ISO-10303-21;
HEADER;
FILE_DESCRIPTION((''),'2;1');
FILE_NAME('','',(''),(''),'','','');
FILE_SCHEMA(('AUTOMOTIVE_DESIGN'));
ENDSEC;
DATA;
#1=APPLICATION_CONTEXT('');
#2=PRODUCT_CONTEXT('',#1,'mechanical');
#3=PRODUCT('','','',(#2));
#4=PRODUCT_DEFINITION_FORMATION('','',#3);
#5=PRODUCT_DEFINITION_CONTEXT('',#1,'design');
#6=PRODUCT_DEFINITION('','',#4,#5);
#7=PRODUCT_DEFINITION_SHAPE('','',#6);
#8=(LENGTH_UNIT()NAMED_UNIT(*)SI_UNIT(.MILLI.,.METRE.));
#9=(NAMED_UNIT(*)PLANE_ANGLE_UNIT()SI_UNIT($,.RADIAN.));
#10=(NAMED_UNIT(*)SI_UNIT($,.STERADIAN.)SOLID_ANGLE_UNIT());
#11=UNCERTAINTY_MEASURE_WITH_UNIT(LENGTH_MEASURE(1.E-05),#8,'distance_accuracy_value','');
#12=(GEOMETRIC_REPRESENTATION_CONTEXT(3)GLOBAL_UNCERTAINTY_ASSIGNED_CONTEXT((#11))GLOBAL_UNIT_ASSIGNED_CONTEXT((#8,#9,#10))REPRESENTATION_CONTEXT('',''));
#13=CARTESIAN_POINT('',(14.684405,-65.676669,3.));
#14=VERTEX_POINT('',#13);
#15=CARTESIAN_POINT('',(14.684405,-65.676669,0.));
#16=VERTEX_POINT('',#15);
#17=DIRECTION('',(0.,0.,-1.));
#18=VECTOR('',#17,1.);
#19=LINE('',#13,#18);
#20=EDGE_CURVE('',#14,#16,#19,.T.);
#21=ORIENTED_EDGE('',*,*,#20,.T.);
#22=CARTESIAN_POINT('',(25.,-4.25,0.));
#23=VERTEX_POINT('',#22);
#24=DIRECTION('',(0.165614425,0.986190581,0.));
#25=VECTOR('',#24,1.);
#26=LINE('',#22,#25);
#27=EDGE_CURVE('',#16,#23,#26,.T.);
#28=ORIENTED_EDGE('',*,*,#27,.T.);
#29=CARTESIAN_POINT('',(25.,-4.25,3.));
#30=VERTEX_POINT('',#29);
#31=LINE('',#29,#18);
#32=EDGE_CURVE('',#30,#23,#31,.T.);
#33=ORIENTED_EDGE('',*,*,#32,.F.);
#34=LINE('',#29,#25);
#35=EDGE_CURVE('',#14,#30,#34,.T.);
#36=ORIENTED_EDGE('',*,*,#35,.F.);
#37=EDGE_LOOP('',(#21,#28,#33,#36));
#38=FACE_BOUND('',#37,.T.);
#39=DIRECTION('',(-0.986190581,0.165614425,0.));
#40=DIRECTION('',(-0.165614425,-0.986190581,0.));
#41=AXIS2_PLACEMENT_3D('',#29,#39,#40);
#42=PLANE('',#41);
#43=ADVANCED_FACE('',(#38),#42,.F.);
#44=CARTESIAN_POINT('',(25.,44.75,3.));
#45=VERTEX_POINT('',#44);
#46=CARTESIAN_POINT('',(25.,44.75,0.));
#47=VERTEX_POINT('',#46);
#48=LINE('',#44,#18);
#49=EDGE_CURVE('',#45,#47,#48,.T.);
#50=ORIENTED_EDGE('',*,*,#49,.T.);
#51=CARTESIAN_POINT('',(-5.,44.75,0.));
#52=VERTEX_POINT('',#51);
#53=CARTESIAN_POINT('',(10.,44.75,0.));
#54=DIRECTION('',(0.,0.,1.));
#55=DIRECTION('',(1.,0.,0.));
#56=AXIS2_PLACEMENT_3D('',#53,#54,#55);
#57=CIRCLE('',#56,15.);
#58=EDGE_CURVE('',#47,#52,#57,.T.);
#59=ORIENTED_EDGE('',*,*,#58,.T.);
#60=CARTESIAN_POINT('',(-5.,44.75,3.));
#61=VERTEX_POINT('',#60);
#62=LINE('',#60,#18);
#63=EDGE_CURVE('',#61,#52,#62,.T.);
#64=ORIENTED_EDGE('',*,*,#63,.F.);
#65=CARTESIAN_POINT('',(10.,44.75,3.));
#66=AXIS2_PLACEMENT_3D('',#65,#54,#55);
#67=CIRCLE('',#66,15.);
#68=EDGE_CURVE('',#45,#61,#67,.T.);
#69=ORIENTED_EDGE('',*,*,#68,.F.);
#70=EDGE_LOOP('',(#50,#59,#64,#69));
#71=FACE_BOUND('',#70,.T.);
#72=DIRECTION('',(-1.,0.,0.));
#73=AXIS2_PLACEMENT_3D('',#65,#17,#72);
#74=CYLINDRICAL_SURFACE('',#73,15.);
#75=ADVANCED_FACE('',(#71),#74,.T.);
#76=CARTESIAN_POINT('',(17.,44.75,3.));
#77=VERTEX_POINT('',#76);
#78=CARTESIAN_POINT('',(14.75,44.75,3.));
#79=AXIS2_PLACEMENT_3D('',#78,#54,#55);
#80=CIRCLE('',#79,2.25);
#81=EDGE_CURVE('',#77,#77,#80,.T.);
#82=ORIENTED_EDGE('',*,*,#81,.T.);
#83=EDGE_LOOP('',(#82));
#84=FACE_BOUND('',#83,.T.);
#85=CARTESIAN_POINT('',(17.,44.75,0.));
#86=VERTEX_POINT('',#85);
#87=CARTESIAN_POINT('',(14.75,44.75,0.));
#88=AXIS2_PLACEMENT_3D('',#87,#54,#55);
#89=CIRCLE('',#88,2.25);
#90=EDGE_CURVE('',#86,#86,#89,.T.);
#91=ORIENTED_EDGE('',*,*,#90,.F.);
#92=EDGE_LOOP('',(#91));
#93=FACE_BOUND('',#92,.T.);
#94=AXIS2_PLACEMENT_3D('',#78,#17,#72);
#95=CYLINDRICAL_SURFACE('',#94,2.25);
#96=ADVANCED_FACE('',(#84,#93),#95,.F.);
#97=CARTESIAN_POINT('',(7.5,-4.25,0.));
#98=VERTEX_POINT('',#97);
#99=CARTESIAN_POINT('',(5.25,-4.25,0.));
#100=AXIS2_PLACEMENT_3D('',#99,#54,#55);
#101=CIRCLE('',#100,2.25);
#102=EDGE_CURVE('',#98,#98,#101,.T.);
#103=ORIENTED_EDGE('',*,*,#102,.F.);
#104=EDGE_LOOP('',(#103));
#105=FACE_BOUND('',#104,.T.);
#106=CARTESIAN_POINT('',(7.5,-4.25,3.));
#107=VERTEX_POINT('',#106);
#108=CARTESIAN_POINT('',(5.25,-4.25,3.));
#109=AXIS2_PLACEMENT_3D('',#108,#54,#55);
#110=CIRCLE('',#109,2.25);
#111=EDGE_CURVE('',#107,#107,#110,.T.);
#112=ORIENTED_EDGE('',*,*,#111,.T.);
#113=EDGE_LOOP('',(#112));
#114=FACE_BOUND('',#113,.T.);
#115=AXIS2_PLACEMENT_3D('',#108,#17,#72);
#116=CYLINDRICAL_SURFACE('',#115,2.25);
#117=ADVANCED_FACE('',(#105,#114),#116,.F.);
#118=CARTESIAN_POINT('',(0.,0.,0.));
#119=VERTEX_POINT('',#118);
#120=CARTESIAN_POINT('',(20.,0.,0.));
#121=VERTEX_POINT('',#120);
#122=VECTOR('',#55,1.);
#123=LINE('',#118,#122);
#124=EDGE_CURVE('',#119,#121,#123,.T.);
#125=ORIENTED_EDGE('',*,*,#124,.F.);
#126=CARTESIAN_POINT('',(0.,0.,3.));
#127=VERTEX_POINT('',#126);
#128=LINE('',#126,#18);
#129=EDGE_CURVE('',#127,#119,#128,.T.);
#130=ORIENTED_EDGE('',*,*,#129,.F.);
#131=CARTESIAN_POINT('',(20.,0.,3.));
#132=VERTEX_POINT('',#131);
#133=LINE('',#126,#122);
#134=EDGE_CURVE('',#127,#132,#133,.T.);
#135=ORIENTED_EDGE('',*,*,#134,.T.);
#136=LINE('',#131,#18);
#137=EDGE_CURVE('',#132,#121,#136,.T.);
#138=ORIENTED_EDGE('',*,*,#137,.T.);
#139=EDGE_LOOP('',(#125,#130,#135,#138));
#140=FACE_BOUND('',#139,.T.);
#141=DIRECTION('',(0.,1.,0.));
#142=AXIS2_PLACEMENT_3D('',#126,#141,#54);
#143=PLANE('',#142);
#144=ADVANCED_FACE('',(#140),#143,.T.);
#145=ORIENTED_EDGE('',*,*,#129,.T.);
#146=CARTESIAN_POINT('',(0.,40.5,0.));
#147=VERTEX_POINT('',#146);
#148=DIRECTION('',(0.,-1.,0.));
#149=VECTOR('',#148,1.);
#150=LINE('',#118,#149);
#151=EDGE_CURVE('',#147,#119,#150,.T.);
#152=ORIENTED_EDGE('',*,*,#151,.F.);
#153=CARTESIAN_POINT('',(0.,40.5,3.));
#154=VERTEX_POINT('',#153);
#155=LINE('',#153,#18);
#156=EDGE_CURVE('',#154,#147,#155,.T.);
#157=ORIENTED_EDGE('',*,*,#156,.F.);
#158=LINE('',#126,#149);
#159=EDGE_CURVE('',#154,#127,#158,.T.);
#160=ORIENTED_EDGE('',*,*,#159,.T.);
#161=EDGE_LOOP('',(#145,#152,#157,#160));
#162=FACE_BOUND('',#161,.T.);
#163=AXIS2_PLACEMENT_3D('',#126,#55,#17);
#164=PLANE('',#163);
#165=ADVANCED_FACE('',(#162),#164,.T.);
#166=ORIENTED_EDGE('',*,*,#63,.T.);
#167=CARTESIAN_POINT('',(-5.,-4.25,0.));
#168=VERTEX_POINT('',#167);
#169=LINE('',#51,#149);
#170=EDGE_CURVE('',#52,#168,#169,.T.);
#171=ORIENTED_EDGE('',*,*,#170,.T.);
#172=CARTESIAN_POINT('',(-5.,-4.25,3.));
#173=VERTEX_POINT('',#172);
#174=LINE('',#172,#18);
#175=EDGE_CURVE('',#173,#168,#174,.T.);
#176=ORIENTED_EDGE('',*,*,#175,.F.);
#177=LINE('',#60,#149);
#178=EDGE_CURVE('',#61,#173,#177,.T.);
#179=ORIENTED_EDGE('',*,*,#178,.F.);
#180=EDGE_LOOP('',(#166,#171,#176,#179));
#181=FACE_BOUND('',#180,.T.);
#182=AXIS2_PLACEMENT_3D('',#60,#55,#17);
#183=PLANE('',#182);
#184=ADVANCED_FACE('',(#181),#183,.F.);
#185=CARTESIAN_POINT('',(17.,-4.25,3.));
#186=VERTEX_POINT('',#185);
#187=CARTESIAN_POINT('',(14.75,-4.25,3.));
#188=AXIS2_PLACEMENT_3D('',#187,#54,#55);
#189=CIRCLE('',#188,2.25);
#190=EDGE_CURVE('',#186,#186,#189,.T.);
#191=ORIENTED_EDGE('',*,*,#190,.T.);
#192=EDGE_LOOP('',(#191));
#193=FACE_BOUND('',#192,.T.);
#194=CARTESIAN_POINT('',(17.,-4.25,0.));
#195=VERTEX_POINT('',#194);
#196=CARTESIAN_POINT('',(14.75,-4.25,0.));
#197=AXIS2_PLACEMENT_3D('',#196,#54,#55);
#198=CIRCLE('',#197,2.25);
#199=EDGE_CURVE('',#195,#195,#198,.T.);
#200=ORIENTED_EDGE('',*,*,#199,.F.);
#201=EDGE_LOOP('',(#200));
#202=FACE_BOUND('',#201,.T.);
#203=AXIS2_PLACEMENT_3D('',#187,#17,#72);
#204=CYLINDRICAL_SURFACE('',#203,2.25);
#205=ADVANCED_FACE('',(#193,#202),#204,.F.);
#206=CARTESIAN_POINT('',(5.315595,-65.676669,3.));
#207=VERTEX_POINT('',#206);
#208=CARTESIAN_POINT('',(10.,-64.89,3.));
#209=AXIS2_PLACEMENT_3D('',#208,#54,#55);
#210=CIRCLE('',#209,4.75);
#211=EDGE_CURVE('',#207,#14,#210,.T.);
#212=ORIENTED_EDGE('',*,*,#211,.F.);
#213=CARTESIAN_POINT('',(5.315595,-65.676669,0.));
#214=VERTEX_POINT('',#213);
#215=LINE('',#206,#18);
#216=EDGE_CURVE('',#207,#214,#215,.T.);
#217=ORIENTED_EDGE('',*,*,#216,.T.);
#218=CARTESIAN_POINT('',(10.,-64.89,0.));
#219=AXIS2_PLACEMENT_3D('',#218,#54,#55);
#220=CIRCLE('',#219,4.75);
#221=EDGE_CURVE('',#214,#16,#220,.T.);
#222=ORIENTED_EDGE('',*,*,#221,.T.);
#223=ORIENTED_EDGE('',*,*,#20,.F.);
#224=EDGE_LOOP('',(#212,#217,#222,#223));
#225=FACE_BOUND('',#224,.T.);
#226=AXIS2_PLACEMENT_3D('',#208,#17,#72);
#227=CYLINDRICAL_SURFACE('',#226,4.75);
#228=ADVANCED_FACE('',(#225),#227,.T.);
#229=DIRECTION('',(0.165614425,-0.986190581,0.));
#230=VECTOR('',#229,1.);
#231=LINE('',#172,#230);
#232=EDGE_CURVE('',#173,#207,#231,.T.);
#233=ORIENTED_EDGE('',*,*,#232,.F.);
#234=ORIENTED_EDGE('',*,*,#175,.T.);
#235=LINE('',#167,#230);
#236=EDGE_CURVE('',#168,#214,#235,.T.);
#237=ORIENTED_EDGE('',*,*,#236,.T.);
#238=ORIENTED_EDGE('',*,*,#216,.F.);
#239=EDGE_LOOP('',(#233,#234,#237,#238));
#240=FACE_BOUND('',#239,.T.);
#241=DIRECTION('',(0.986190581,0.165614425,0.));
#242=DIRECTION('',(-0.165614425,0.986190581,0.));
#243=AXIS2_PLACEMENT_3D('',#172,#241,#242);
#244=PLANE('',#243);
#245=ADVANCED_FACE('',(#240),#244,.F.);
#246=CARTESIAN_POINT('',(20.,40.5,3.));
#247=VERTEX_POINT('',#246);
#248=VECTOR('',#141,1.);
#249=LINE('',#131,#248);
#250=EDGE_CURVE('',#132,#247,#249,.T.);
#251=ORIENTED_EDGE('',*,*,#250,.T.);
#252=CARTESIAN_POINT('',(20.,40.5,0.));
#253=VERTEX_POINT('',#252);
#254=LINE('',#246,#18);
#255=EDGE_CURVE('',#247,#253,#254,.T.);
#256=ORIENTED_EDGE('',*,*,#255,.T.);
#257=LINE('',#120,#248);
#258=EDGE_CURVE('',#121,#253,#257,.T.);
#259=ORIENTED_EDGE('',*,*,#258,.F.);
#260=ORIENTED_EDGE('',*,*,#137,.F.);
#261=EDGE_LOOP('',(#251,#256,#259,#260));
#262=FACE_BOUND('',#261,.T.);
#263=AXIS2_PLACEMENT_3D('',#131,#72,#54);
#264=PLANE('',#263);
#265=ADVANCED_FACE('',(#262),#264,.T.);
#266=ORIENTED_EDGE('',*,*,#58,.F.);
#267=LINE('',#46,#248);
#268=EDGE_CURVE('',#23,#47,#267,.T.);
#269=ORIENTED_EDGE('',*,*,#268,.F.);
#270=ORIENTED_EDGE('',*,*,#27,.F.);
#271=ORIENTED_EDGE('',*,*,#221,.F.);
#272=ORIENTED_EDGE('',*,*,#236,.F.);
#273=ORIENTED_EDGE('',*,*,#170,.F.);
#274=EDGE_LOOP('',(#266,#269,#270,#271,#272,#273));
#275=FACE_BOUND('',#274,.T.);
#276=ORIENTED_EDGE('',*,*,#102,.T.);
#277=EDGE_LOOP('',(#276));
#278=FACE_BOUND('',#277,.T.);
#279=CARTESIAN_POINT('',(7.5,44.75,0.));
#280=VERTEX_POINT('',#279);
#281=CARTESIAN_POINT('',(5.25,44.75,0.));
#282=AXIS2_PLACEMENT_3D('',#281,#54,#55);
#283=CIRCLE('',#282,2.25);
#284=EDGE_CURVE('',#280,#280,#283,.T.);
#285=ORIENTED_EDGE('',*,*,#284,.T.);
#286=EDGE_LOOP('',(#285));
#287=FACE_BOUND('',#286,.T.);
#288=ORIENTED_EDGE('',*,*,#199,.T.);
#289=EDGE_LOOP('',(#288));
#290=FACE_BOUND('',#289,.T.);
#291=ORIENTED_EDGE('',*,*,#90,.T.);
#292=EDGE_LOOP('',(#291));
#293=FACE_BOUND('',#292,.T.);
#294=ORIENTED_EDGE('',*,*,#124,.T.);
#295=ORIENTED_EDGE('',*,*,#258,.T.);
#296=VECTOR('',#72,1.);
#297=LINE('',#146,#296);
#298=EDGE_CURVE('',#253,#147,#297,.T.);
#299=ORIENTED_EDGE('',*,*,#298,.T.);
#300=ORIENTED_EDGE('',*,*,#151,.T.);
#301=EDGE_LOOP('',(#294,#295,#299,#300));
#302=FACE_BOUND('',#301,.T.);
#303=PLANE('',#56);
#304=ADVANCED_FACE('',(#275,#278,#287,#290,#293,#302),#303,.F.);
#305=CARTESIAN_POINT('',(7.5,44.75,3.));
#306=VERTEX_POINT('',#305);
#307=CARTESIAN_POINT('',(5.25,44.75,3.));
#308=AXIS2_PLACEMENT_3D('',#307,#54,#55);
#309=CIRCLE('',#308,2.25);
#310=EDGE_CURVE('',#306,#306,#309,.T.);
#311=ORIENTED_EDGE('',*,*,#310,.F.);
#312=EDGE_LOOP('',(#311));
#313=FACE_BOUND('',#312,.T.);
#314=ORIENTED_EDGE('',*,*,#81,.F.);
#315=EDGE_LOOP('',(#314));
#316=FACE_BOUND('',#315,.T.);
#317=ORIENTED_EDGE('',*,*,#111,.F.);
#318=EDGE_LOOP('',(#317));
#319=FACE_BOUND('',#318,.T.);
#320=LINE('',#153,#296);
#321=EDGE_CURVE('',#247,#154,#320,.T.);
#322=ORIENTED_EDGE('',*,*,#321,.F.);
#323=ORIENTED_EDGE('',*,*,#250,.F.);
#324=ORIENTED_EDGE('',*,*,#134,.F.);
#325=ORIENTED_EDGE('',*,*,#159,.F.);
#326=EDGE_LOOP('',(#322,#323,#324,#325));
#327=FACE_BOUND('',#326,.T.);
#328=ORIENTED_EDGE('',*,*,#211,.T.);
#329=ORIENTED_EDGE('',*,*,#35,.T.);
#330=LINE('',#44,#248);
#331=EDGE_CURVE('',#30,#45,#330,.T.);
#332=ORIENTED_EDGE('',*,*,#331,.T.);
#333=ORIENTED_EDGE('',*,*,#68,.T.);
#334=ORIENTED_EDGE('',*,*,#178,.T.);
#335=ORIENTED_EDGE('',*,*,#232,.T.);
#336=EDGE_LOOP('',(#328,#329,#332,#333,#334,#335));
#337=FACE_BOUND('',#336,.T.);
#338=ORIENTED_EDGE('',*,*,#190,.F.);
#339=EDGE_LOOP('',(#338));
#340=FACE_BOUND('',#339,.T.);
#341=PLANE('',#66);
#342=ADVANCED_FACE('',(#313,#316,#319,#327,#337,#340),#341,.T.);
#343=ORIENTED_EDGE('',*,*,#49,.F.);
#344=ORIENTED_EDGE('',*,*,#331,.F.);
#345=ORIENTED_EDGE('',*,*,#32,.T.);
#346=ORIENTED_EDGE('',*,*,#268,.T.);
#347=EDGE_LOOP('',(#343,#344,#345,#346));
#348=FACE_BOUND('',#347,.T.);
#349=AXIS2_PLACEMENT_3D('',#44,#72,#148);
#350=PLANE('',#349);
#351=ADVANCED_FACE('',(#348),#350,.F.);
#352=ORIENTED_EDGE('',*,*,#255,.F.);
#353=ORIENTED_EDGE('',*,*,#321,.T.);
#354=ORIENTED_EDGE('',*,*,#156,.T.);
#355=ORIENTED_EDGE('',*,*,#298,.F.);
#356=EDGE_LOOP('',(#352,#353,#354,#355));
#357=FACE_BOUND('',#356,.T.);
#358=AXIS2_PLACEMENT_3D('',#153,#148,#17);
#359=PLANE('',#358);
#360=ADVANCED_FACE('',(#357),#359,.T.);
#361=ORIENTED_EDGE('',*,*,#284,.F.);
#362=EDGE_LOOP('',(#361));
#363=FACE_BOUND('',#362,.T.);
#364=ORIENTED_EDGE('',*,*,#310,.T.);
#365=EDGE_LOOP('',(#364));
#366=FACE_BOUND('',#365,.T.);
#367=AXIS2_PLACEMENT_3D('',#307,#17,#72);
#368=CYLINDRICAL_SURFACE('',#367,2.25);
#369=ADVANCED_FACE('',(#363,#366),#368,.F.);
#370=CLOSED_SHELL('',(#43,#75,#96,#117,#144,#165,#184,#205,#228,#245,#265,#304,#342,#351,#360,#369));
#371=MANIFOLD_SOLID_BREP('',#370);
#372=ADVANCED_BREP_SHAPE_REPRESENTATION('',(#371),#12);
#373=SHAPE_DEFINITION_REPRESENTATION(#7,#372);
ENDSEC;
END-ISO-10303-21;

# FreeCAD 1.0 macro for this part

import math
import FreeCAD as App
import Part
import Sketcher
from FreeCAD import Vector

doc = App.newDocument("Part")
body = doc.addObject("PartDesign::Body", "Body")

sketch1 = body.newObject("Sketcher::SketchObject", "Sketch")
sketch1.AttachmentSupport = (doc.getObject("XY_Plane"), [""])
sketch1.MapMode = "FlatFace"
sketch1.addGeometry([
    Part.LineSegment(Vector(-5, 44.75, 0), Vector(-5, -4.25, 0)),
    Part.LineSegment(Vector(-5, -4.25, 0), Vector(5.315595, -65.676669, 0)),
    Part.ArcOfCircle(Part.Circle(Vector(10, -64.89, 0), Vector(0, 0, 1), 4.75), math.radians(-170.46707), math.radians(-9.53293)),
    Part.LineSegment(Vector(14.684405, -65.676669, 0), Vector(25, -4.25, 0)),
    Part.LineSegment(Vector(25, -4.25, 0), Vector(25, 44.75, 0)),
    Part.ArcOfCircle(Part.Circle(Vector(10, 44.75, 0), Vector(0, 0, 1), 15), math.radians(0), math.radians(180)),
    Part.Circle(Vector(5.25, -4.25, 0), Vector(0, 0, 1), 2.25),
    Part.Circle(Vector(14.75, -4.25, 0), Vector(0, 0, 1), 2.25),
    Part.LineSegment(Vector(20, 0, 0), Vector(0, 0, 0)),
    Part.LineSegment(Vector(0, 0, 0), Vector(0, 40.5, 0)),
    Part.LineSegment(Vector(0, 40.5, 0), Vector(20, 40.5, 0)),
    Part.LineSegment(Vector(20, 40.5, 0), Vector(20, 0, 0)),
    Part.Circle(Vector(5.25, 44.75, 0), Vector(0, 0, 1), 2.25),
    Part.Circle(Vector(14.75, 44.75, 0), Vector(0, 0, 1), 2.25),
], False)
sketch1.addConstraint([
    Sketcher.Constraint("Coincident", 0, 2, 1, 1),
    Sketcher.Constraint("Tangent", 1, 2, 2, 1),
    Sketcher.Constraint("Tangent", 2, 2, 3, 1),
    Sketcher.Constraint("Coincident", 3, 2, 4, 1),
    Sketcher.Constraint("Tangent", 4, 2, 5, 1),
    Sketcher.Constraint("Tangent", 5, 2, 0, 1),
    Sketcher.Constraint("Coincident", 8, 2, 9, 1),
    Sketcher.Constraint("Coincident", 9, 2, 10, 1),
    Sketcher.Constraint("Coincident", 10, 2, 11, 1),
    Sketcher.Constraint("Coincident", 11, 2, 8, 1),
    Sketcher.Constraint("Vertical", 0),
    Sketcher.Constraint("Vertical", 4),
    Sketcher.Constraint("Horizontal", 8),
    Sketcher.Constraint("Vertical", 9),
    Sketcher.Constraint("Horizontal", 10),
    Sketcher.Constraint("Vertical", 11),
    Sketcher.Constraint("Coincident", 8, 2, -1, 1),
    Sketcher.Constraint("Equal", 6, 7),
    Sketcher.Constraint("Equal", 7, 12),
    Sketcher.Constraint("Equal", 12, 13),
    Sketcher.Constraint("Horizontal", 6, 3, 7, 3),
    Sketcher.Constraint("Horizontal", 5, 3, 12, 3),
    Sketcher.Constraint("Horizontal", 12, 3, 13, 3),
    Sketcher.Constraint("Horizontal", 7, 3, 0, 2),
    Sketcher.Constraint("Horizontal", 1, 2, 2, 2),
    Sketcher.Constraint("Horizontal", 0, 2, 3, 2),
    Sketcher.Constraint("Vertical", 6, 3, 12, 3),
    Sketcher.Constraint("Vertical", 7, 3, 13, 3),
    Sketcher.Constraint("Radius", 5, 15.0),
    Sketcher.Constraint("Diameter", 6, 4.5),
    Sketcher.Constraint("DistanceX", 8, 2, 8, 1, 20.0),
    Sketcher.Constraint("DistanceY", 0, 2, 0, 1, 49.0),
    Sketcher.Constraint("Radius", 2, 4.75),
    Sketcher.Constraint("DistanceY", 9, 1, 9, 2, 40.5),
    Sketcher.Constraint("DistanceX", -1, 1, 2, 3, 10.0),
    Sketcher.Constraint("DistanceX", 6, 3, 7, 3, 9.5),
    Sketcher.Constraint("DistanceY", 2, 3, -1, 1, 64.89),
    Sketcher.Constraint("DistanceY", -1, 1, 5, 3, 44.75),
    Sketcher.Constraint("DistanceX", -1, 1, 6, 3, 5.25),
])
pad1 = body.newObject("PartDesign::Pad", "Pad")
pad1.Profile = sketch1
pad1.Length = 3

doc.recompute()
